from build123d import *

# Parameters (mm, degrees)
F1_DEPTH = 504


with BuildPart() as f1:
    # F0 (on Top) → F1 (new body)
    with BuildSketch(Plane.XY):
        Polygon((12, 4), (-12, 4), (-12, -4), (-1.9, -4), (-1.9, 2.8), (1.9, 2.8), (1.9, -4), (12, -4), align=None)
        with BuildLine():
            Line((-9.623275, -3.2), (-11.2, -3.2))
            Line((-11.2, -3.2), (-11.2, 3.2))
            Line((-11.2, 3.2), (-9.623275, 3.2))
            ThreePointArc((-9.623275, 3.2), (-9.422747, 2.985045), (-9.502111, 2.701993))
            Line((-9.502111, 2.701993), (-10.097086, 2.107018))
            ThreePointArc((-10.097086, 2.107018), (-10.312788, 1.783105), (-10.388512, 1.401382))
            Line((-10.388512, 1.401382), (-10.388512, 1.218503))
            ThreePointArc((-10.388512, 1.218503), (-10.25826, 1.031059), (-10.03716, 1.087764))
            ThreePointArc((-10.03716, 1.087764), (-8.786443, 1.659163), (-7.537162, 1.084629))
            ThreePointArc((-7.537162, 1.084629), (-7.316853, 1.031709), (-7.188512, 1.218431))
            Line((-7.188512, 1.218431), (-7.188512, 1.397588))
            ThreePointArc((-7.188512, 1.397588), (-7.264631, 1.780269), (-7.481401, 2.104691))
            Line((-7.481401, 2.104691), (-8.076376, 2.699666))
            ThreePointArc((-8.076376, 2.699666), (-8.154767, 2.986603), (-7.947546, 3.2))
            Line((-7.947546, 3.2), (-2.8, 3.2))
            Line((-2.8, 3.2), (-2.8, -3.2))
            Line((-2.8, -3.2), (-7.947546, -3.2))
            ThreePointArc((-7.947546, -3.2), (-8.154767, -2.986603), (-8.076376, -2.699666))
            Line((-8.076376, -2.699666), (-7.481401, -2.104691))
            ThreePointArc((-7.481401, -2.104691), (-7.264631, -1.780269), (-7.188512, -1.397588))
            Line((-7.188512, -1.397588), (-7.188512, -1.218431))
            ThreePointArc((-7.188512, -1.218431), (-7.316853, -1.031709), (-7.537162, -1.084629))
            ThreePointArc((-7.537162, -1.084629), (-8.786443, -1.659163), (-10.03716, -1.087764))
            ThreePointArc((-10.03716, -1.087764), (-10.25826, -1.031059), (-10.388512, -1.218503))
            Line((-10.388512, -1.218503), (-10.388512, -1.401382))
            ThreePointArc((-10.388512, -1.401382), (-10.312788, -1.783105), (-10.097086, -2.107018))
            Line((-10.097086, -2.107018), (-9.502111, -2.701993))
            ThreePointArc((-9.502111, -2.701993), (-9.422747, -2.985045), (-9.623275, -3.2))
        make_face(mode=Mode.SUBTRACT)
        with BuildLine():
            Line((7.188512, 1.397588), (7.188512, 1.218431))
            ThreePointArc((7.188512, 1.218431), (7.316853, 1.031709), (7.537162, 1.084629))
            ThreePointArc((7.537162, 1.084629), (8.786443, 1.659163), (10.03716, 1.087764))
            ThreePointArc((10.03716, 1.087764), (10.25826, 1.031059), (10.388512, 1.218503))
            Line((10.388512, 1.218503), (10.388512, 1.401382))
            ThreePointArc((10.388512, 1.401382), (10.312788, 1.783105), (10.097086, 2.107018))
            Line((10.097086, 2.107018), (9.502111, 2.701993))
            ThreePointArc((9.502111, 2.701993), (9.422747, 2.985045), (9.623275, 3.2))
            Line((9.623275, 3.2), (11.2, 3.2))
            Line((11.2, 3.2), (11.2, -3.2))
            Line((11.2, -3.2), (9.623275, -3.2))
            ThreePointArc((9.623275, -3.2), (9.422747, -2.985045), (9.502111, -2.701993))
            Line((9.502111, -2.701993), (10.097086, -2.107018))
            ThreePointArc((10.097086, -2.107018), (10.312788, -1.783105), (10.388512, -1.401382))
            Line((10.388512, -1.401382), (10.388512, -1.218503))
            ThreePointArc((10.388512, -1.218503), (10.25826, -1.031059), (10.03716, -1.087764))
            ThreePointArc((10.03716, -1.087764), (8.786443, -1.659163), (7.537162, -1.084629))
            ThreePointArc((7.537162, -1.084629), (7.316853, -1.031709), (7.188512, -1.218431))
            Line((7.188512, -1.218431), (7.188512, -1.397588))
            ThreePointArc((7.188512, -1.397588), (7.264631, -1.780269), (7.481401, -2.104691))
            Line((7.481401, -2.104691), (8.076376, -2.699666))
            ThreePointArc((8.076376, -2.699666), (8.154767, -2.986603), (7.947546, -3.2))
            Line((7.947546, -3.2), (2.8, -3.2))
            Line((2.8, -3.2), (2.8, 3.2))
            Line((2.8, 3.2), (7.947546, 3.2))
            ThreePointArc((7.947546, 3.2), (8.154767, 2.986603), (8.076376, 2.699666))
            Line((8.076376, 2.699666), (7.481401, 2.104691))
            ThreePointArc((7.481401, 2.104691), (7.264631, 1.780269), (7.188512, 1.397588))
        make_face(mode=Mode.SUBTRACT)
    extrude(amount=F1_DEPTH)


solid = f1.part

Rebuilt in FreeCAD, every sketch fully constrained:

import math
import FreeCAD as App
import Part
import Sketcher


def add_polygon(sketch, points):
    """Adds a closed chain of lines whose ends are joined by coincident constraints."""
    first, n = sketch.GeometryCount, len(points)
    for a, b in zip(points, points[1:] + points[:1]):
        sketch.addGeometry(Part.LineSegment(App.Vector(*a, 0), App.Vector(*b, 0)), False)
    for i in range(n):
        sketch.addConstraint(Sketcher.Constraint("Coincident", first + i, 2, first + (i + 1) % n, 1))

doc = App.newDocument("Part")
params = doc.addObject("Spreadsheet::Sheet", "Params")
for row, (alias, value) in enumerate([
    ("sketch1_radius", "0.3 mm"),
    ("sketch1_radius2", "0.2 mm"),
    ("sketch1_width", "24 mm"),
    ("sketch1_height", "8 mm"),
    ("sketch1_radius3", "1.65 mm"),
    ("pad1_length", "504 mm"),
], start=1):
    params.set(f"A{row}", alias)
    params.set(f"B{row}", "=" + value)
    params.setAlias(f"B{row}", alias)

body = doc.addObject("PartDesign::Body", "Body")

# Sketch on XY plane
sketch1 = body.newObject("Sketcher::SketchObject", "Sketch")
sketch1.AttachmentSupport = (doc.getObject("XY_Plane"), [""])
sketch1.MapMode = "FlatFace"
add_polygon(sketch1, [(12, 4), (-12, 4), (-12, -4), (-1.9, -4), (-1.9, 2.8), (1.9, 2.8), (1.9, -4), (12, -4)])  # lines 0-7
sketch1.addGeometry(Part.ArcOfCircle(Part.Circle(App.Vector(-9.71, -2.91, 0), App.Vector(0, 0, 1), 0.3), math.radians(-72), math.radians(45)), False)  # 8
sketch1.addGeometry(Part.LineSegment(App.Vector(-9.62, -3.2, 0), App.Vector(-11.2, -3.2, 0)), False)  # 9
sketch1.addGeometry(Part.LineSegment(App.Vector(-11.2, -3.2, 0), App.Vector(-11.2, 3.2, 0)), False)  # 10
sketch1.addGeometry(Part.LineSegment(App.Vector(-11.2, 3.2, 0), App.Vector(-9.62, 3.2, 0)), False)  # 11
sketch1.addGeometry(Part.ArcOfCircle(Part.Circle(App.Vector(-9.71, 2.91, 0), App.Vector(0, 0, 1), 0.3), math.radians(-45), math.radians(72)), False)  # 12
sketch1.addGeometry(Part.LineSegment(App.Vector(-9.5, 2.7, 0), App.Vector(-10.1, 2.11, 0)), False)  # 13
sketch1.addGeometry(Part.ArcOfCircle(Part.Circle(App.Vector(-9.39, 1.4, 0), App.Vector(0, 0, 1), 1), math.radians(135), math.radians(180)), False)  # 14
sketch1.addGeometry(Part.LineSegment(App.Vector(-10.39, 1.4, 0), App.Vector(-10.39, 1.22, 0)), False)  # 15
sketch1.addGeometry(Part.ArcOfCircle(Part.Circle(App.Vector(-10.19, 1.22, 0), App.Vector(0, 0, 1), 0.2), math.radians(-180), math.radians(-41)), False)  # 16
sketch1.addGeometry(Part.ArcOfCircle(Part.Circle(App.Vector(-8.79, 0.01, 0), App.Vector(0, 0, 1), 1.65), math.radians(41), math.radians(139)), False)  # 17
sketch1.addGeometry(Part.ArcOfCircle(Part.Circle(App.Vector(-7.39, 1.22, 0), App.Vector(0, 0, 1), 0.2), math.radians(-138), math.radians(0)), False)  # 18
sketch1.addGeometry(Part.LineSegment(App.Vector(-7.19, 1.22, 0), App.Vector(-7.19, 1.4, 0)), False)  # 19
sketch1.addGeometry(Part.ArcOfCircle(Part.Circle(App.Vector(-8.19, 1.4, 0), App.Vector(0, 0, 1), 1), math.radians(0), math.radians(45)), False)  # 20
sketch1.addGeometry(Part.LineSegment(App.Vector(-7.48, 2.1, 0), App.Vector(-8.08, 2.7, 0)), False)  # 21
sketch1.addGeometry(Part.ArcOfCircle(Part.Circle(App.Vector(-7.86, 2.91, 0), App.Vector(0, 0, 1), 0.3), math.radians(106), math.radians(225)), False)  # 22
sketch1.addGeometry(Part.LineSegment(App.Vector(-7.95, 3.2, 0), App.Vector(-2.8, 3.2, 0)), False)  # 23
sketch1.addGeometry(Part.LineSegment(App.Vector(-2.8, 3.2, 0), App.Vector(-2.8, -3.2, 0)), False)  # 24
sketch1.addGeometry(Part.LineSegment(App.Vector(-2.8, -3.2, 0), App.Vector(-7.95, -3.2, 0)), False)  # 25
sketch1.addGeometry(Part.ArcOfCircle(Part.Circle(App.Vector(-7.86, -2.91, 0), App.Vector(0, 0, 1), 0.3), math.radians(135), math.radians(254)), False)  # 26
sketch1.addGeometry(Part.LineSegment(App.Vector(-8.08, -2.7, 0), App.Vector(-7.48, -2.1, 0)), False)  # 27
sketch1.addGeometry(Part.ArcOfCircle(Part.Circle(App.Vector(-8.19, -1.4, 0), App.Vector(0, 0, 1), 1), math.radians(-45), math.radians(0)), False)  # 28
sketch1.addGeometry(Part.LineSegment(App.Vector(-7.19, -1.4, 0), App.Vector(-7.19, -1.22, 0)), False)  # 29
sketch1.addGeometry(Part.ArcOfCircle(Part.Circle(App.Vector(-7.39, -1.22, 0), App.Vector(0, 0, 1), 0.2), math.radians(0), math.radians(138)), False)  # 30
sketch1.addGeometry(Part.ArcOfCircle(Part.Circle(App.Vector(-8.79, -0.01, 0), App.Vector(0, 0, 1), 1.65), math.radians(-139), math.radians(-41)), False)  # 31
sketch1.addGeometry(Part.ArcOfCircle(Part.Circle(App.Vector(-10.19, -1.22, 0), App.Vector(0, 0, 1), 0.2), math.radians(41), math.radians(180)), False)  # 32
sketch1.addGeometry(Part.LineSegment(App.Vector(-10.39, -1.22, 0), App.Vector(-10.39, -1.4, 0)), False)  # 33
sketch1.addGeometry(Part.ArcOfCircle(Part.Circle(App.Vector(-9.39, -1.4, 0), App.Vector(0, 0, 1), 1), math.radians(-180), math.radians(-135)), False)  # 34
sketch1.addGeometry(Part.LineSegment(App.Vector(-10.1, -2.11, 0), App.Vector(-9.5, -2.7, 0)), False)  # 35
sketch1.addGeometry(Part.ArcOfCircle(Part.Circle(App.Vector(8.19, 1.4, 0), App.Vector(0, 0, 1), 1), math.radians(135), math.radians(180)), False)  # 36
sketch1.addGeometry(Part.LineSegment(App.Vector(7.19, 1.4, 0), App.Vector(7.19, 1.22, 0)), False)  # 37
sketch1.addGeometry(Part.ArcOfCircle(Part.Circle(App.Vector(7.39, 1.22, 0), App.Vector(0, 0, 1), 0.2), math.radians(180), math.radians(318)), False)  # 38
sketch1.addGeometry(Part.ArcOfCircle(Part.Circle(App.Vector(8.79, 0.01, 0), App.Vector(0, 0, 1), 1.65), math.radians(41), math.radians(139)), False)  # 39
sketch1.addGeometry(Part.ArcOfCircle(Part.Circle(App.Vector(10.19, 1.22, 0), App.Vector(0, 0, 1), 0.2), math.radians(-139), math.radians(0)), False)  # 40
sketch1.addGeometry(Part.LineSegment(App.Vector(10.39, 1.22, 0), App.Vector(10.39, 1.4, 0)), False)  # 41
sketch1.addGeometry(Part.ArcOfCircle(Part.Circle(App.Vector(9.39, 1.4, 0), App.Vector(0, 0, 1), 1), math.radians(0), math.radians(45)), False)  # 42
sketch1.addGeometry(Part.LineSegment(App.Vector(10.1, 2.11, 0), App.Vector(9.5, 2.7, 0)), False)  # 43
sketch1.addGeometry(Part.ArcOfCircle(Part.Circle(App.Vector(9.71, 2.91, 0), App.Vector(0, 0, 1), 0.3), math.radians(108), math.radians(225)), False)  # 44
sketch1.addGeometry(Part.LineSegment(App.Vector(9.62, 3.2, 0), App.Vector(11.2, 3.2, 0)), False)  # 45
sketch1.addGeometry(Part.LineSegment(App.Vector(11.2, 3.2, 0), App.Vector(11.2, -3.2, 0)), False)  # 46
sketch1.addGeometry(Part.LineSegment(App.Vector(11.2, -3.2, 0), App.Vector(9.62, -3.2, 0)), False)  # 47
sketch1.addGeometry(Part.ArcOfCircle(Part.Circle(App.Vector(9.71, -2.91, 0), App.Vector(0, 0, 1), 0.3), math.radians(135), math.radians(252)), False)  # 48
sketch1.addGeometry(Part.LineSegment(App.Vector(9.5, -2.7, 0), App.Vector(10.1, -2.11, 0)), False)  # 49
sketch1.addGeometry(Part.ArcOfCircle(Part.Circle(App.Vector(9.39, -1.4, 0), App.Vector(0, 0, 1), 1), math.radians(-45), math.radians(0)), False)  # 50
sketch1.addGeometry(Part.LineSegment(App.Vector(10.39, -1.4, 0), App.Vector(10.39, -1.22, 0)), False)  # 51
sketch1.addGeometry(Part.ArcOfCircle(Part.Circle(App.Vector(10.19, -1.22, 0), App.Vector(0, 0, 1), 0.2), math.radians(0), math.radians(139)), False)  # 52
sketch1.addGeometry(Part.ArcOfCircle(Part.Circle(App.Vector(8.79, -0.01, 0), App.Vector(0, 0, 1), 1.65), math.radians(-139), math.radians(-41)), False)  # 53
sketch1.addGeometry(Part.ArcOfCircle(Part.Circle(App.Vector(7.39, -1.22, 0), App.Vector(0, 0, 1), 0.2), math.radians(42), math.radians(180)), False)  # 54
sketch1.addGeometry(Part.LineSegment(App.Vector(7.19, -1.22, 0), App.Vector(7.19, -1.4, 0)), False)  # 55
sketch1.addGeometry(Part.ArcOfCircle(Part.Circle(App.Vector(8.19, -1.4, 0), App.Vector(0, 0, 1), 1), math.radians(180), math.radians(225)), False)  # 56
sketch1.addGeometry(Part.LineSegment(App.Vector(7.48, -2.1, 0), App.Vector(8.08, -2.7, 0)), False)  # 57
sketch1.addGeometry(Part.ArcOfCircle(Part.Circle(App.Vector(7.86, -2.91, 0), App.Vector(0, 0, 1), 0.3), math.radians(-74), math.radians(45)), False)  # 58
sketch1.addGeometry(Part.LineSegment(App.Vector(7.95, -3.2, 0), App.Vector(2.8, -3.2, 0)), False)  # 59
sketch1.addGeometry(Part.LineSegment(App.Vector(2.8, -3.2, 0), App.Vector(2.8, 3.2, 0)), False)  # 60
sketch1.addGeometry(Part.LineSegment(App.Vector(2.8, 3.2, 0), App.Vector(7.95, 3.2, 0)), False)  # 61
sketch1.addGeometry(Part.ArcOfCircle(Part.Circle(App.Vector(7.86, 2.91, 0), App.Vector(0, 0, 1), 0.3), math.radians(-45), math.radians(74)), False)  # 62
sketch1.addGeometry(Part.LineSegment(App.Vector(8.08, 2.7, 0), App.Vector(7.48, 2.1, 0)), False)  # 63
sketch1.addConstraint(Sketcher.Constraint("Coincident", 8, 1, 9, 1))
sketch1.addConstraint(Sketcher.Constraint("Coincident", 9, 2, 10, 1))
sketch1.addConstraint(Sketcher.Constraint("Coincident", 10, 2, 11, 1))
sketch1.addConstraint(Sketcher.Constraint("Coincident", 11, 2, 12, 2))
sketch1.addConstraint(Sketcher.Constraint("Coincident", 12, 1, 13, 1))
sketch1.addConstraint(Sketcher.Constraint("Coincident", 13, 2, 14, 1))
sketch1.addConstraint(Sketcher.Constraint("Coincident", 14, 2, 15, 1))
sketch1.addConstraint(Sketcher.Constraint("Tangent", 15, 2, 16, 1))
sketch1.addConstraint(Sketcher.Constraint("Coincident", 16, 2, 17, 2))
sketch1.addConstraint(Sketcher.Constraint("Coincident", 17, 1, 18, 1))
sketch1.addConstraint(Sketcher.Constraint("Coincident", 18, 2, 19, 1))
sketch1.addConstraint(Sketcher.Constraint("Tangent", 19, 2, 20, 1))
sketch1.addConstraint(Sketcher.Constraint("Coincident", 20, 2, 21, 1))
sketch1.addConstraint(Sketcher.Constraint("Coincident", 21, 2, 22, 2))
sketch1.addConstraint(Sketcher.Constraint("Coincident", 22, 1, 23, 1))
sketch1.addConstraint(Sketcher.Constraint("Coincident", 23, 2, 24, 1))
sketch1.addConstraint(Sketcher.Constraint("Coincident", 24, 2, 25, 1))
sketch1.addConstraint(Sketcher.Constraint("Coincident", 25, 2, 26, 2))
sketch1.addConstraint(Sketcher.Constraint("Coincident", 26, 1, 27, 1))
sketch1.addConstraint(Sketcher.Constraint("Coincident", 27, 2, 28, 1))
sketch1.addConstraint(Sketcher.Constraint("Tangent", 28, 2, 29, 1))
sketch1.addConstraint(Sketcher.Constraint("Coincident", 29, 2, 30, 1))
sketch1.addConstraint(Sketcher.Constraint("Coincident", 30, 2, 31, 2))
sketch1.addConstraint(Sketcher.Constraint("Coincident", 31, 1, 32, 1))
sketch1.addConstraint(Sketcher.Constraint("Tangent", 32, 2, 33, 1))
sketch1.addConstraint(Sketcher.Constraint("Coincident", 33, 2, 34, 1))
sketch1.addConstraint(Sketcher.Constraint("Coincident", 34, 2, 35, 1))
sketch1.addConstraint(Sketcher.Constraint("Coincident", 35, 2, 8, 2))
sketch1.addConstraint(Sketcher.Constraint("Tangent", 36, 2, 37, 1))
sketch1.addConstraint(Sketcher.Constraint("Coincident", 37, 2, 38, 1))
sketch1.addConstraint(Sketcher.Constraint("Coincident", 38, 2, 39, 2))
sketch1.addConstraint(Sketcher.Constraint("Coincident", 39, 1, 40, 1))
sketch1.addConstraint(Sketcher.Constraint("Tangent", 40, 2, 41, 1))
sketch1.addConstraint(Sketcher.Constraint("Coincident", 41, 2, 42, 1))
sketch1.addConstraint(Sketcher.Constraint("Coincident", 42, 2, 43, 1))
sketch1.addConstraint(Sketcher.Constraint("Coincident", 43, 2, 44, 2))
sketch1.addConstraint(Sketcher.Constraint("Coincident", 44, 1, 45, 1))
sketch1.addConstraint(Sketcher.Constraint("Coincident", 45, 2, 46, 1))
sketch1.addConstraint(Sketcher.Constraint("Coincident", 46, 2, 47, 1))
sketch1.addConstraint(Sketcher.Constraint("Coincident", 47, 2, 48, 2))
sketch1.addConstraint(Sketcher.Constraint("Coincident", 48, 1, 49, 1))
sketch1.addConstraint(Sketcher.Constraint("Coincident", 49, 2, 50, 1))
sketch1.addConstraint(Sketcher.Constraint("Coincident", 50, 2, 51, 1))
sketch1.addConstraint(Sketcher.Constraint("Tangent", 51, 2, 52, 1))
sketch1.addConstraint(Sketcher.Constraint("Coincident", 52, 2, 53, 2))
sketch1.addConstraint(Sketcher.Constraint("Coincident", 53, 1, 54, 1))
sketch1.addConstraint(Sketcher.Constraint("Coincident", 54, 2, 55, 1))
sketch1.addConstraint(Sketcher.Constraint("Tangent", 55, 2, 56, 1))
sketch1.addConstraint(Sketcher.Constraint("Coincident", 56, 2, 57, 1))
sketch1.addConstraint(Sketcher.Constraint("Coincident", 57, 2, 58, 2))
sketch1.addConstraint(Sketcher.Constraint("Coincident", 58, 1, 59, 1))
sketch1.addConstraint(Sketcher.Constraint("Coincident", 59, 2, 60, 1))
sketch1.addConstraint(Sketcher.Constraint("Coincident", 60, 2, 61, 1))
sketch1.addConstraint(Sketcher.Constraint("Coincident", 61, 2, 62, 2))
sketch1.addConstraint(Sketcher.Constraint("Coincident", 62, 1, 63, 1))
sketch1.addConstraint(Sketcher.Constraint("Coincident", 63, 2, 36, 1))
sketch1.addConstraint(Sketcher.Constraint("Horizontal", 0))
sketch1.addConstraint(Sketcher.Constraint("Vertical", 1))
sketch1.addConstraint(Sketcher.Constraint("Horizontal", 2))
sketch1.addConstraint(Sketcher.Constraint("Vertical", 3))
sketch1.addConstraint(Sketcher.Constraint("Horizontal", 4))
sketch1.addConstraint(Sketcher.Constraint("Vertical", 5))
sketch1.addConstraint(Sketcher.Constraint("Horizontal", 6))
sketch1.addConstraint(Sketcher.Constraint("Vertical", 7))
sketch1.addConstraint(Sketcher.Constraint("Horizontal", 9))
sketch1.addConstraint(Sketcher.Constraint("Vertical", 10))
sketch1.addConstraint(Sketcher.Constraint("Horizontal", 11))
sketch1.addConstraint(Sketcher.Constraint("Vertical", 15))
sketch1.addConstraint(Sketcher.Constraint("Vertical", 19))
sketch1.addConstraint(Sketcher.Constraint("Horizontal", 23))
sketch1.addConstraint(Sketcher.Constraint("Vertical", 24))
sketch1.addConstraint(Sketcher.Constraint("Horizontal", 25))
sketch1.addConstraint(Sketcher.Constraint("Vertical", 29))
sketch1.addConstraint(Sketcher.Constraint("Vertical", 33))
sketch1.addConstraint(Sketcher.Constraint("Vertical", 37))
sketch1.addConstraint(Sketcher.Constraint("Vertical", 41))
sketch1.addConstraint(Sketcher.Constraint("Horizontal", 45))
sketch1.addConstraint(Sketcher.Constraint("Vertical", 46))
sketch1.addConstraint(Sketcher.Constraint("Horizontal", 47))
sketch1.addConstraint(Sketcher.Constraint("Vertical", 51))
sketch1.addConstraint(Sketcher.Constraint("Vertical", 55))
sketch1.addConstraint(Sketcher.Constraint("Horizontal", 59))
sketch1.addConstraint(Sketcher.Constraint("Vertical", 60))
sketch1.addConstraint(Sketcher.Constraint("Horizontal", 61))
sketch1.addConstraint(Sketcher.Constraint("Equal", 8, 12))
sketch1.addConstraint(Sketcher.Constraint("Equal", 16, 18))
sketch1.addConstraint(Sketcher.Constraint("Equal", 12, 22))
sketch1.addConstraint(Sketcher.Constraint("Equal", 22, 26))
sketch1.addConstraint(Sketcher.Constraint("Equal", 20, 28))
sketch1.addConstraint(Sketcher.Constraint("Equal", 18, 30))
sketch1.addConstraint(Sketcher.Constraint("Equal", 17, 31))
sketch1.addConstraint(Sketcher.Constraint("Equal", 30, 32))
sketch1.addConstraint(Sketcher.Constraint("Equal", 14, 34))
sketch1.addConstraint(Sketcher.Constraint("Equal", 28, 36))
sketch1.addConstraint(Sketcher.Constraint("Equal", 32, 38))
sketch1.addConstraint(Sketcher.Constraint("Equal", 31, 39))
sketch1.addConstraint(Sketcher.Constraint("Equal", 38, 40))
sketch1.addConstraint(Sketcher.Constraint("Equal", 34, 42))
sketch1.addConstraint(Sketcher.Constraint("Equal", 26, 44))
sketch1.addConstraint(Sketcher.Constraint("Equal", 44, 48))
sketch1.addConstraint(Sketcher.Constraint("Equal", 42, 50))
sketch1.addConstraint(Sketcher.Constraint("Equal", 40, 52))
sketch1.addConstraint(Sketcher.Constraint("Equal", 39, 53))
sketch1.addConstraint(Sketcher.Constraint("Equal", 52, 54))
sketch1.addConstraint(Sketcher.Constraint("Equal", 36, 56))
sketch1.addConstraint(Sketcher.Constraint("Equal", 48, 58))
sketch1.addConstraint(Sketcher.Constraint("Equal", 58, 62))
sketch1.addConstraint(Sketcher.Constraint("Symmetric", 28, 3, 36, 3, -1, 1))
sketch1.addConstraint(Sketcher.Constraint("Symmetric", 31, 3, 39, 3, -1, 1))
sketch1.addConstraint(Sketcher.Constraint("Symmetric", 34, 3, 42, 3, -1, 1))
sketch1.addConstraint(Sketcher.Constraint("Symmetric", 8, 3, 44, 3, -1, 1))
sketch1.addConstraint(Sketcher.Constraint("Symmetric", 12, 3, 48, 3, -1, 1))
sketch1.addConstraint(Sketcher.Constraint("Symmetric", 14, 3, 50, 3, -1, 1))
sketch1.addConstraint(Sketcher.Constraint("Symmetric", 17, 3, 53, 3, -1, 1))
sketch1.addConstraint(Sketcher.Constraint("Symmetric", 18, 3, 54, 3, -1, 1))
sketch1.addConstraint(Sketcher.Constraint("Symmetric", 22, 3, 58, 3, -1, 1))
sketch1.addConstraint(Sketcher.Constraint("Symmetric", 26, 3, 62, 3, -1, 1))
sketch1.addConstraint(Sketcher.Constraint("Symmetric", 0, 2, 6, 2, -1, 1))
sketch1.addConstraint(Sketcher.Constraint("Symmetric", 9, 2, 45, 2, -1, 1))
sketch1.addConstraint(Sketcher.Constraint("Symmetric", 20, 2, 56, 2, -1, 1))
sketch1.addConstraint(Sketcher.Constraint("Symmetric", 23, 2, 59, 2, -1, 1))
sketch1.addConstraint(Sketcher.Constraint("Symmetric", 20, 3, 36, 3, -2))
sketch1.addConstraint(Sketcher.Constraint("Symmetric", 17, 3, 39, 3, -2))
sketch1.addConstraint(Sketcher.Constraint("Symmetric", 14, 3, 42, 3, -2))
sketch1.addConstraint(Sketcher.Constraint("Symmetric", 12, 3, 44, 3, -2))
sketch1.addConstraint(Sketcher.Constraint("Symmetric", 26, 3, 58, 3, -2))
sketch1.addConstraint(Sketcher.Constraint("Symmetric", 2, 2, 5, 2, -2))
sketch1.addConstraint(Sketcher.Constraint("Perpendicular", 13, 21))
sketch1.addConstraint(Sketcher.Constraint("Perpendicular", 21, 27))
sketch1.addConstraint(Sketcher.Constraint("Horizontal", 18, 3, 38, 3))
sketch1.addConstraint(Sketcher.Constraint("Horizontal", 30, 3, 54, 3))
sketch1.addConstraint(Sketcher.Constraint("Horizontal", 38, 3, 18, 2))
sketch1.addConstraint(Sketcher.Constraint("Horizontal", 11, 2, 22, 1))
sketch1.addConstraint(Sketcher.Constraint("Horizontal", 9, 2, 24, 2))
sketch1.addConstraint(Sketcher.Constraint("Horizontal", 54, 3, 29, 2))
sketch1.addConstraint(Sketcher.Constraint("Horizontal", 18, 2, 37, 2))
sketch1.addConstraint(Sketcher.Constraint("Horizontal", 16, 2, 39, 1))
sketch1.addConstraint(Sketcher.Constraint("Horizontal", 14, 2, 41, 2))
sketch1.addConstraint(Sketcher.Constraint("Horizontal", 13, 2, 42, 2))
sketch1.addConstraint(Sketcher.Constraint("Horizontal", 12, 1, 43, 2))
sketch1.addConstraint(Sketcher.Constraint("Horizontal", 23, 2, 44, 1))
sketch1.addConstraint(Sketcher.Constraint("Horizontal", 25, 2, 46, 2))
sketch1.addConstraint(Sketcher.Constraint("Horizontal", 35, 2, 48, 1))
sketch1.addConstraint(Sketcher.Constraint("Horizontal", 34, 2, 49, 2))
sketch1.addConstraint(Sketcher.Constraint("Horizontal", 33, 2, 50, 2))
sketch1.addConstraint(Sketcher.Constraint("Horizontal", 31, 1, 52, 2))
sketch1.addConstraint(Sketcher.Constraint("Horizontal", 29, 2, 54, 2))
sketch1.addConstraint(Sketcher.Constraint("Horizontal", 27, 2, 56, 2))
sketch1.addConstraint(Sketcher.Constraint("Horizontal", 26, 1, 57, 2))
sketch1.addConstraint(Sketcher.Constraint("Horizontal", 45, 2, 60, 2))
sketch1.addConstraint(Sketcher.Constraint("Horizontal", 21, 2, 62, 1))
sketch1.addConstraint(Sketcher.Constraint("Horizontal", 20, 2, 63, 2))
sketch1.addConstraint(Sketcher.Constraint("Vertical", 21, 2, 26, 1))
sketch1.addConstraint(Sketcher.Constraint("Vertical", 16, 2, 31, 1))
sketch1.addConstraint(Sketcher.Constraint("Vertical", 13, 2, 34, 2))
sketch1.addConstraint(Sketcher.Constraint("Vertical", 12, 1, 35, 2))
sketch1.addConstraint(Sketcher.Constraint("Equal", 15, 33))
sketch1.addConstraint(Sketcher.Constraint("Equal", 13, 21))
sketch1.addConstraint(Sketcher.Constraint("Radius", 8, 0.3))
sketch1.addConstraint(Sketcher.Constraint("Radius", 16, 0.2))
sketch1.addConstraint(Sketcher.Constraint("DistanceX", 0, 2, 0, 1, 24.0))
sketch1.addConstraint(Sketcher.Constraint("DistanceY", 1, 2, 1, 1, 8.0))
sketch1.addConstraint(Sketcher.Constraint("Radius", 17, 1.65))
sketch1.addConstraint(Sketcher.Constraint("DistanceX", 2, 1, 2, 2, 10.1))
sketch1.addConstraint(Sketcher.Constraint("DistanceY", 3, 1, 3, 2, 6.8))
sketch1.addConstraint(Sketcher.Constraint("DistanceY", 10, 1, 10, 2, 6.4))
sketch1.addConstraint(Sketcher.Constraint("DistanceX", 9, 2, -1, 1, 11.2))
sketch1.addConstraint(Sketcher.Constraint("DistanceX", 23, 2, -1, 1, 2.8))
sketch1.addConstraint(Sketcher.Constraint("Radius", 14, 1.000006))
sketch1.addConstraint(Sketcher.Constraint("Radius", 20, 0.999997))
sketch1.addConstraint(Sketcher.Constraint("DistanceY", 15, 2, 15, 1, 0.182879))
sketch1.addConstraint(Sketcher.Constraint("DistanceX", 20, 2, -1, 1, 7.481401))
sketch1.addConstraint(Sketcher.Constraint("Distance", 13, 0.841422))
sketch1.addConstraint(Sketcher.Constraint("DistanceX", 9, 2, 9, 1, 1.576725))
sketch1.addConstraint(Sketcher.Constraint("DistanceX", 23, 1, 23, 2, 5.147546))
sketch1.addConstraint(Sketcher.Constraint("DistanceY", 19, 1, 19, 2, 0.179157))
sketch1.addConstraint(Sketcher.Constraint("DistanceY", -1, 1, 14, 3, 1.401379))
sketch1.addConstraint(Sketcher.Constraint("DistanceX", 16, 3, -1, 1, 10.188512))
sketch1.addConstraint(Sketcher.Constraint("DistanceX", 17, 3, -1, 1, 8.788512))
sketch1.addConstraint(Sketcher.Constraint("DistanceX", 18, 3, -1, 1, 7.388511))
sketch1.addConstraint(Sketcher.Constraint("DistanceY", -1, 1, 18, 3, 1.21843))
sketch1.addConstraint(Sketcher.Constraint("DistanceX", 12, 1, -1, 1, 9.502111))
sketch1.addConstraint(Sketcher.Constraint("DistanceY", -1, 1, 14, 2, 1.401382))
sketch1.addConstraint(Sketcher.Constraint("DistanceX", 16, 2, -1, 1, 10.03716))
sketch1.setExpression("Constraints[166]", "Params.sketch1_radius")
sketch1.setExpression("Constraints[167]", "Params.sketch1_radius2")
sketch1.setExpression("Constraints[168]", "Params.sketch1_width")
sketch1.setExpression("Constraints[169]", "Params.sketch1_height")
sketch1.setExpression("Constraints[170]", "Params.sketch1_radius3")
pad1 = body.newObject("PartDesign::Pad", "Pad")
pad1.Profile = sketch1
pad1.setExpression("Length", "Params.pad1_length")

doc.recompute()
